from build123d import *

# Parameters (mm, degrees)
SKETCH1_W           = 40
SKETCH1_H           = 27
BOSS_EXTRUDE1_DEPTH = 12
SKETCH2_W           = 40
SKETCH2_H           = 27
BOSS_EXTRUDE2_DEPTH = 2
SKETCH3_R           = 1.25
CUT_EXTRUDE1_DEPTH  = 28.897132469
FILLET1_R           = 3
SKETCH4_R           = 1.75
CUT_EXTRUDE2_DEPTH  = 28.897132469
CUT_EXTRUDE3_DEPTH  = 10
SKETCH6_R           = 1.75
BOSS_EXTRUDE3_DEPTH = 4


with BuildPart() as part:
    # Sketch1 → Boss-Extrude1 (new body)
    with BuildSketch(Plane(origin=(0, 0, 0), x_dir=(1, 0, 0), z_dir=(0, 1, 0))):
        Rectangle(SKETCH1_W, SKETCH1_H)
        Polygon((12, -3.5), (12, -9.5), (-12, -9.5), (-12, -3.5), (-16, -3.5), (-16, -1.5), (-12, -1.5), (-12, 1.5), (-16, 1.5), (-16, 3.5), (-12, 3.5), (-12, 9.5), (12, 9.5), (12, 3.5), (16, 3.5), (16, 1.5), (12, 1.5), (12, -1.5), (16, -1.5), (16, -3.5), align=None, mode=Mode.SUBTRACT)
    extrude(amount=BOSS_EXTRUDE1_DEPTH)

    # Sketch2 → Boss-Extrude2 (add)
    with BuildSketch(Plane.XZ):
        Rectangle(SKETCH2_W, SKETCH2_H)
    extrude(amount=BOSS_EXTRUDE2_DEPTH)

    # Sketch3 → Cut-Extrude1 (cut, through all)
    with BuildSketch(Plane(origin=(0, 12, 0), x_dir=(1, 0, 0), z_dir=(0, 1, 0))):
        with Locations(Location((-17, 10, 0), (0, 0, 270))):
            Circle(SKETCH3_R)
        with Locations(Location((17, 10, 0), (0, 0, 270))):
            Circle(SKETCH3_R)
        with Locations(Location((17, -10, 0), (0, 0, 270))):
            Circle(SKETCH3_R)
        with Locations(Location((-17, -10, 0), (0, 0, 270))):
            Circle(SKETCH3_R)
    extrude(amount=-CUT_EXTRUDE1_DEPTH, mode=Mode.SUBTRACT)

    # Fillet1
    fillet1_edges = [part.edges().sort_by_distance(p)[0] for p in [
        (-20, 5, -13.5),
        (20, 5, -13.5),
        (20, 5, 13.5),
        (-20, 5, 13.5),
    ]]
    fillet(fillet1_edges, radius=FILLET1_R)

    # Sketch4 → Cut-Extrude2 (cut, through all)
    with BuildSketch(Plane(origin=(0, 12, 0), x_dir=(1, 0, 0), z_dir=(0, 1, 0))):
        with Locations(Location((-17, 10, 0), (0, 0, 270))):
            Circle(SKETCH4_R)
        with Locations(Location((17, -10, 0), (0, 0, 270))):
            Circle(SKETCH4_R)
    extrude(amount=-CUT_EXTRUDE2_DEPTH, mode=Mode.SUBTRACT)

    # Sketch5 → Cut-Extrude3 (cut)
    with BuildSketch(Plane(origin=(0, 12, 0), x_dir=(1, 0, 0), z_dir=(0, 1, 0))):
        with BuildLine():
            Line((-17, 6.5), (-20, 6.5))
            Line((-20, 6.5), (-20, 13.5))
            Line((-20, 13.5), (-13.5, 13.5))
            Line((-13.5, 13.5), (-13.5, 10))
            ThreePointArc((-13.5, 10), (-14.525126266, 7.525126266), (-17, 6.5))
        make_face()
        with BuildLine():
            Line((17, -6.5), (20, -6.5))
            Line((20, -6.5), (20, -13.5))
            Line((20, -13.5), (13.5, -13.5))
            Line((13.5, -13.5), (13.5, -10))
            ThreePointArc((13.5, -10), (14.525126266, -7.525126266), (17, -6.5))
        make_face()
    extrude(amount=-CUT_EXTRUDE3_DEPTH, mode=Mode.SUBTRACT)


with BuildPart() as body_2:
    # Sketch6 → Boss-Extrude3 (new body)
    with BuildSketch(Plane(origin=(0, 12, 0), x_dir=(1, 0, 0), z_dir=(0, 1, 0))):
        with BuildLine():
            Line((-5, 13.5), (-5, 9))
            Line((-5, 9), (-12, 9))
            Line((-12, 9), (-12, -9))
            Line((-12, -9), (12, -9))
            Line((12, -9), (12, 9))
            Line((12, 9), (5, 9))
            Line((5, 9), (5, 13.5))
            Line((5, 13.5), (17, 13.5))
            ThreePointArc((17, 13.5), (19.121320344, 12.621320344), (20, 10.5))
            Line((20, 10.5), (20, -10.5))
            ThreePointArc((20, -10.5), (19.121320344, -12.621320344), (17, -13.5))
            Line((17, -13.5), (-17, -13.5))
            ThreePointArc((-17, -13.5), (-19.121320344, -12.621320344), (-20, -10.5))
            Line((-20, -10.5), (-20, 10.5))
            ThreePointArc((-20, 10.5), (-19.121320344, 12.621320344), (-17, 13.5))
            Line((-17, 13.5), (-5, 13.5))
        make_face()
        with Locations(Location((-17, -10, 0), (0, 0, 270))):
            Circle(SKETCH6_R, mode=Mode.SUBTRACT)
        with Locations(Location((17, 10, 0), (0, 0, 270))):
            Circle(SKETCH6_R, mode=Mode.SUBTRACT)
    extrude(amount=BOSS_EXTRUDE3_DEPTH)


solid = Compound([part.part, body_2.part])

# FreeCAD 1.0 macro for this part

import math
import FreeCAD as App
import Part
import Sketcher

V = App.Vector
Q = App.Units.Quantity


def edges_at(feature, points):
    """Names of the edges that pass closest to the given points."""
    edges = feature.Shape.Edges
    near = lambda p: min(range(len(edges)), key=lambda i: edges[i].distToShape(Part.Vertex(*p))[0])
    return sorted({f"Edge{near(p) + 1}" for p in points})


def add_polygon(sketch, points):
    """Adds a closed chain of lines whose ends are joined by coincident constraints."""
    first, n = sketch.GeometryCount, len(points)
    for a, b in zip(points, points[1:] + points[:1]):
        sketch.addGeometry(Part.LineSegment(App.Vector(*a, 0), App.Vector(*b, 0)), False)
    for i in range(n):
        sketch.addConstraint(Sketcher.Constraint("Coincident", first + i, 2, first + (i + 1) % n, 1))

doc = App.newDocument("Part")
params = doc.addObject("Spreadsheet::Sheet", "Params")
for row, (alias, value) in enumerate([
    ("sketch1_width", "40 mm"),
    ("sketch1_width2", "4 mm"),
    ("sketch1_width3", "24 mm"),
    ("sketch1_height", "27 mm"),
    ("sketch1_height2", "6 mm"),
    ("pad1_length", "12 mm"),
    ("sketch2_width", "40 mm"),
    ("sketch2_height", "27 mm"),
    ("pad2_length", "2 mm"),
    ("sketch3_diameter", "2.5 mm"),
    ("fillet_radius", "3 mm"),
    ("sketch4_diameter", "3.5 mm"),
    ("sketch5_radius", "3.5 mm"),
    ("sketch5_width", "3 mm"),
    ("sketch5_height", "7 mm"),
    ("pocket3_length", "10 mm"),
    ("sketch6_radius", "3 mm"),
    ("sketch6_diameter", "3.5 mm"),
    ("sketch6_width", "12 mm"),
    ("sketch6_width2", "34 mm"),
    ("sketch6_width3", "7 mm"),
    ("pad3_length", "4 mm"),
], start=1):
    params.set(f"A{row}", alias)
    params.set(f"B{row}", "=" + value)
    params.setAlias(f"B{row}", alias)

body = doc.addObject("PartDesign::Body", "Body")

sketch1 = doc.addObject("Sketcher::SketchObject", "Sketch")
body.addObject(sketch1)
sketch1.AttachmentSupport = (doc.XZ_Plane, [""])
sketch1.MapMode = "FlatFace"
add_polygon(sketch1, [(-20, -13.5), (-20, 13.5), (20, 13.5), (20, -13.5)])
add_polygon(sketch1, [(16, 3.5), (12, 3.5), (12, 9.5), (-12, 9.5), (-12, 3.5), (-16, 3.5), (-16, 1.5), (-12, 1.5), (-12, -1.5), (-16, -1.5), (-16, -3.5), (-12, -3.5), (-12, -9.5), (12, -9.5), (12, -3.5), (16, -3.5), (16, -1.5), (12, -1.5), (12, 1.5), (16, 1.5)])
sketch1.addConstraint([
    Sketcher.Constraint("Vertical", 0),
    Sketcher.Constraint("Horizontal", 1),
    Sketcher.Constraint("Vertical", 2),
    Sketcher.Constraint("Horizontal", 3),
    Sketcher.Constraint("Horizontal", 4),
    Sketcher.Constraint("Vertical", 5),
    Sketcher.Constraint("Horizontal", 6),
    Sketcher.Constraint("Vertical", 7),
    Sketcher.Constraint("Horizontal", 8),
    Sketcher.Constraint("Vertical", 9),
    Sketcher.Constraint("Horizontal", 10),
    Sketcher.Constraint("Vertical", 11),
    Sketcher.Constraint("Horizontal", 12),
    Sketcher.Constraint("Vertical", 13),
    Sketcher.Constraint("Horizontal", 14),
    Sketcher.Constraint("Vertical", 15),
    Sketcher.Constraint("Horizontal", 16),
    Sketcher.Constraint("Vertical", 17),
    Sketcher.Constraint("Horizontal", 18),
    Sketcher.Constraint("Vertical", 19),
    Sketcher.Constraint("Horizontal", 20),
    Sketcher.Constraint("Vertical", 21),
    Sketcher.Constraint("Horizontal", 22),
    Sketcher.Constraint("Vertical", 23),
    Sketcher.Constraint("Symmetric", 0, 2, 2, 2, -1, 1),
    Sketcher.Constraint("Symmetric", 4, 2, 14, 2, -1, 1),
    Sketcher.Constraint("Symmetric", 6, 2, 16, 2, -1, 1),
    Sketcher.Constraint("Symmetric", 8, 2, 18, 2, -1, 1),
    Sketcher.Constraint("Symmetric", 10, 2, 20, 2, -1, 1),
    Sketcher.Constraint("Symmetric", 12, 2, 22, 2, -1, 1),
    Sketcher.Constraint("Symmetric", 4, 2, 7, 2, -2),
    Sketcher.Constraint("Symmetric", 12, 2, 19, 2, -2),
    Sketcher.Constraint("Vertical", 7, 2, 10, 2),
    Sketcher.Constraint("DistanceX", 1, 1, 1, 2, Q("40 mm")),
    Sketcher.Constraint("DistanceX", 4, 2, 4, 1, Q("4 mm")),
    Sketcher.Constraint("DistanceX", 6, 2, 6, 1, Q("24 mm")),
    Sketcher.Constraint("DistanceY", 0, 1, 0, 2, Q("27 mm")),
    Sketcher.Constraint("DistanceY", 5, 1, 5, 2, Q("6 mm")),
    Sketcher.Constraint("DistanceY", 9, 2, 9, 1, Q("2 mm")),
    Sketcher.Constraint("DistanceY", 11, 2, 11, 1, Q("3 mm")),
])
sketch1.setExpression("Constraints[57]", "Params.sketch1_width")
sketch1.setExpression("Constraints[58]", "Params.sketch1_width2")
sketch1.setExpression("Constraints[59]", "Params.sketch1_width3")
sketch1.setExpression("Constraints[60]", "Params.sketch1_height")
sketch1.setExpression("Constraints[61]", "Params.sketch1_height2")
pad1 = doc.addObject("PartDesign::Pad", "Pad")
body.addObject(pad1)
pad1.Profile = sketch1
pad1.setExpression("Length", "Params.pad1_length")
pad1.Reversed = True

sketch2 = doc.addObject("Sketcher::SketchObject", "Sketch001")
body.addObject(sketch2)
sketch2.AttachmentSupport = (doc.XZ_Plane, [""])
sketch2.MapMode = "FlatFace"
add_polygon(sketch2, [(-20, 14), (-20, -14), (20, -14), (20, 14)])
sketch2.addConstraint([
    Sketcher.Constraint("Vertical", 0),
    Sketcher.Constraint("Horizontal", 1),
    Sketcher.Constraint("Vertical", 2),
    Sketcher.Constraint("Horizontal", 3),
    Sketcher.Constraint("Symmetric", 0, 2, 2, 2, -1, 1),
    Sketcher.Constraint("DistanceX", 1, 1, 1, 2, Q("40 mm")),
    Sketcher.Constraint("DistanceY", 0, 2, 0, 1, Q("27 mm")),
])
sketch2.setExpression("Constraints[9]", "Params.sketch2_width")
sketch2.setExpression("Constraints[10]", "Params.sketch2_height")
pad2 = doc.addObject("PartDesign::Pad", "Pad001")
body.addObject(pad2)
pad2.Profile = sketch2
pad2.setExpression("Length", "Params.pad2_length")

sketch3 = doc.addObject("Sketcher::SketchObject", "Sketch002")
body.addObject(sketch3)
sketch3.AttachmentSupport = (doc.XZ_Plane, [""])
sketch3.MapMode = "FlatFace"
sketch3.AttachmentOffset = App.Placement(V(0, 0, -12), App.Rotation())
sketch3.addGeometry([
    Part.Circle(V(-17, -10, 0), V(0, 0, 1), 1.2),
    Part.Circle(V(17, -10, 0), V(0, 0, 1), 1.2),
    Part.Circle(V(17, 10, 0), V(0, 0, 1), 1.2),
    Part.Circle(V(-17, 10, 0), V(0, 0, 1), 1.2),
], False)
sketch3.addConstraint([
    Sketcher.Constraint("Equal", 0, 1),
    Sketcher.Constraint("Equal", 1, 2),
    Sketcher.Constraint("Equal", 2, 3),
    Sketcher.Constraint("Symmetric", 0, 3, 2, 3, -1, 1),
    Sketcher.Constraint("Symmetric", 1, 3, 3, 3, -1, 1),
    Sketcher.Constraint("Symmetric", 0, 3, 1, 3, -2),
    Sketcher.Constraint("Diameter", 0, Q("2.5 mm")),
    Sketcher.Constraint("DistanceX", 0, 3, -1, 1, Q("17 mm")),
    Sketcher.Constraint("DistanceY", 0, 3, -1, 1, Q("10 mm")),
])
sketch3.setExpression("Constraints[6]", "Params.sketch3_diameter")
pocket1 = doc.addObject("PartDesign::Pocket", "Pocket")
body.addObject(pocket1)
pocket1.Profile = sketch3
pocket1.Type = "ThroughAll"
pocket1.Reversed = True
doc.recompute()

fillet = doc.addObject("PartDesign::Fillet", "Fillet")
body.addObject(fillet)
fillet.Base = (pocket1, edges_at(pocket1, [
    (-20, 5, -13.5),
    (20, 5, -13.5),
    (20, 5, 13.5),
    (-20, 5, 13.5),
]))
fillet.setExpression("Radius", "Params.fillet_radius")

sketch4 = doc.addObject("Sketcher::SketchObject", "Sketch003")
body.addObject(sketch4)
sketch4.AttachmentSupport = (doc.XZ_Plane, [""])
sketch4.MapMode = "FlatFace"
sketch4.AttachmentOffset = App.Placement(V(0, 0, -12), App.Rotation())
sketch4.addGeometry([
    Part.Circle(V(-17, -10, 0), V(0, 0, 1), 1.8),
    Part.Circle(V(17, 10, 0), V(0, 0, 1), 1.8),
], False)
sketch4.addConstraint([
    Sketcher.Constraint("Equal", 0, 1),
    Sketcher.Constraint("Symmetric", 0, 3, 1, 3, -1, 1),
    Sketcher.Constraint("Diameter", 0, Q("3.5 mm")),
    Sketcher.Constraint("DistanceX", 0, 3, -1, 1, Q("17 mm")),
    Sketcher.Constraint("DistanceY", 0, 3, -1, 1, Q("10 mm")),
])
sketch4.setExpression("Constraints[2]", "Params.sketch4_diameter")
pocket2 = doc.addObject("PartDesign::Pocket", "Pocket001")
body.addObject(pocket2)
pocket2.Profile = sketch4
pocket2.Type = "ThroughAll"
pocket2.Reversed = True

sketch5 = doc.addObject("Sketcher::SketchObject", "Sketch004")
body.addObject(sketch5)
sketch5.AttachmentSupport = (doc.XZ_Plane, [""])
sketch5.MapMode = "FlatFace"
sketch5.AttachmentOffset = App.Placement(V(0, 0, -12), App.Rotation())
sketch5.addGeometry([
    Part.LineSegment(V(-20, -6.5, 0), V(-17, -6.5, 0)),
    Part.ArcOfCircle(Part.Circle(V(-17, -10, 0), V(0, 0, 1), 3.5), math.radians(0), math.radians(90)),
    Part.LineSegment(V(-13.5, -10, 0), V(-13.5, -13.5, 0)),
    Part.LineSegment(V(-13.5, -13.5, 0), V(-20, -13.5, 0)),
    Part.LineSegment(V(-20, -13.5, 0), V(-20, -6.5, 0)),
    Part.LineSegment(V(20, 6.5, 0), V(17, 6.5, 0)),
    Part.ArcOfCircle(Part.Circle(V(17, 10, 0), V(0, 0, 1), 3.5), math.radians(-180), math.radians(-90)),
    Part.LineSegment(V(13.5, 10, 0), V(13.5, 13.5, 0)),
    Part.LineSegment(V(13.5, 13.5, 0), V(20, 13.5, 0)),
    Part.LineSegment(V(20, 13.5, 0), V(20, 6.5, 0)),
], False)
sketch5.addConstraint([
    Sketcher.Constraint("Tangent", 0, 2, 1, 2),
    Sketcher.Constraint("Tangent", 1, 1, 2, 1),
    Sketcher.Constraint("Coincident", 2, 2, 3, 1),
    Sketcher.Constraint("Coincident", 3, 2, 4, 1),
    Sketcher.Constraint("Coincident", 4, 2, 0, 1),
    Sketcher.Constraint("Tangent", 5, 2, 6, 2),
    Sketcher.Constraint("Tangent", 6, 1, 7, 1),
    Sketcher.Constraint("Coincident", 7, 2, 8, 1),
    Sketcher.Constraint("Coincident", 8, 2, 9, 1),
    Sketcher.Constraint("Coincident", 9, 2, 5, 1),
    Sketcher.Constraint("Horizontal", 0),
    Sketcher.Constraint("Vertical", 2),
    Sketcher.Constraint("Horizontal", 3),
    Sketcher.Constraint("Vertical", 4),
    Sketcher.Constraint("Horizontal", 5),
    Sketcher.Constraint("Vertical", 7),
    Sketcher.Constraint("Horizontal", 8),
    Sketcher.Constraint("Vertical", 9),
    Sketcher.Constraint("Equal", 1, 6),
    Sketcher.Constraint("Symmetric", 1, 3, 6, 3, -1, 1),
    Sketcher.Constraint("Symmetric", 3, 2, 8, 2, -1, 1),
    Sketcher.Constraint("Radius", 1, Q("3.5 mm")),
    Sketcher.Constraint("DistanceX", 0, 1, 0, 2, Q("3 mm")),
    Sketcher.Constraint("DistanceY", 4, 1, 4, 2, Q("7 mm")),
    Sketcher.Constraint("DistanceX", 1, 3, -1, 1, Q("17 mm")),
    Sketcher.Constraint("DistanceY", 1, 3, -1, 1, Q("10 mm")),
])
sketch5.setExpression("Constraints[21]", "Params.sketch5_radius")
sketch5.setExpression("Constraints[22]", "Params.sketch5_width")
sketch5.setExpression("Constraints[23]", "Params.sketch5_height")
pocket3 = doc.addObject("PartDesign::Pocket", "Pocket002")
body.addObject(pocket3)
pocket3.Profile = sketch5
pocket3.setExpression("Length", "Params.pocket3_length")
pocket3.Reversed = True
body2 = doc.addObject("PartDesign::Body", "Body001")

sketch6 = doc.addObject("Sketcher::SketchObject", "Sketch005")
body2.addObject(sketch6)
sketch6.AttachmentSupport = (doc.getObject("XZ_Plane001"), [""])
sketch6.MapMode = "FlatFace"
sketch6.AttachmentOffset = App.Placement(V(0, 0, -12), App.Rotation())
sketch6.addGeometry([
    Part.LineSegment(V(-5, -9, 0), V(-5, -13.5, 0)),
    Part.LineSegment(V(-5, -13.5, 0), V(-17, -13.5, 0)),
    Part.ArcOfCircle(Part.Circle(V(-17, -10.5, 0), V(0, 0, 1), 3), math.radians(180), math.radians(270)),
    Part.LineSegment(V(-20, -10.5, 0), V(-20, 10.5, 0)),
    Part.ArcOfCircle(Part.Circle(V(-17, 10.5, 0), V(0, 0, 1), 3), math.radians(90), math.radians(180)),
    Part.LineSegment(V(-17, 13.5, 0), V(17, 13.5, 0)),
    Part.ArcOfCircle(Part.Circle(V(17, 10.5, 0), V(0, 0, 1), 3), math.radians(0), math.radians(90)),
    Part.LineSegment(V(20, 10.5, 0), V(20, -10.5, 0)),
    Part.ArcOfCircle(Part.Circle(V(17, -10.5, 0), V(0, 0, 1), 3), math.radians(-90), math.radians(0)),
    Part.LineSegment(V(17, -13.5, 0), V(5, -13.5, 0)),
    Part.LineSegment(V(5, -13.5, 0), V(5, -9, 0)),
    Part.LineSegment(V(5, -9, 0), V(12, -9, 0)),
    Part.LineSegment(V(12, -9, 0), V(12, 9, 0)),
    Part.LineSegment(V(12, 9, 0), V(-12, 9, 0)),
    Part.LineSegment(V(-12, 9, 0), V(-12, -9, 0)),
    Part.LineSegment(V(-12, -9, 0), V(-5, -9, 0)),
    Part.Circle(V(-17, 10, 0), V(0, 0, 1), 1.8),
    Part.Circle(V(17, -10, 0), V(0, 0, 1), 1.8),
], False)
sketch6.addConstraint([
    Sketcher.Constraint("Coincident", 0, 2, 1, 1),
    Sketcher.Constraint("Tangent", 1, 2, 2, 2),
    Sketcher.Constraint("Tangent", 2, 1, 3, 1),
    Sketcher.Constraint("Tangent", 3, 2, 4, 2),
    Sketcher.Constraint("Tangent", 4, 1, 5, 1),
    Sketcher.Constraint("Tangent", 5, 2, 6, 2),
    Sketcher.Constraint("Tangent", 6, 1, 7, 1),
    Sketcher.Constraint("Tangent", 7, 2, 8, 2),
    Sketcher.Constraint("Tangent", 8, 1, 9, 1),
    Sketcher.Constraint("Coincident", 9, 2, 10, 1),
    Sketcher.Constraint("Coincident", 10, 2, 11, 1),
    Sketcher.Constraint("Coincident", 11, 2, 12, 1),
    Sketcher.Constraint("Coincident", 12, 2, 13, 1),
    Sketcher.Constraint("Coincident", 13, 2, 14, 1),
    Sketcher.Constraint("Coincident", 14, 2, 15, 1),
    Sketcher.Constraint("Coincident", 15, 2, 0, 1),
    Sketcher.Constraint("Vertical", 0),
    Sketcher.Constraint("Horizontal", 1),
    Sketcher.Constraint("Vertical", 3),
    Sketcher.Constraint("Horizontal", 5),
    Sketcher.Constraint("Vertical", 7),
    Sketcher.Constraint("Horizontal", 9),
    Sketcher.Constraint("Vertical", 10),
    Sketcher.Constraint("Horizontal", 11),
    Sketcher.Constraint("Vertical", 12),
    Sketcher.Constraint("Horizontal", 13),
    Sketcher.Constraint("Vertical", 14),
    Sketcher.Constraint("Horizontal", 15),
    Sketcher.Constraint("Equal", 2, 4),
    Sketcher.Constraint("Equal", 4, 6),
    Sketcher.Constraint("Equal", 6, 8),
    Sketcher.Constraint("Equal", 16, 17),
    Sketcher.Constraint("Symmetric", 2, 3, 6, 3, -1, 1),
    Sketcher.Constraint("Symmetric", 16, 3, 17, 3, -1, 1),
    Sketcher.Constraint("Symmetric", 11, 2, 13, 2, -1, 1),
    Sketcher.Constraint("Symmetric", 0, 2, 9, 2, -2),
    Sketcher.Constraint("Horizontal", 11, 2, 14, 2),
    Sketcher.Constraint("Vertical", 4, 3, 16, 3),
    Sketcher.Constraint("Radius", 2, Q("3 mm")),
    Sketcher.Constraint("Diameter", 16, Q("3.5 mm")),
    Sketcher.Constraint("DistanceX", 1, 2, 1, 1, Q("12 mm")),
    Sketcher.Constraint("DistanceX", 5, 1, 5, 2, Q("34 mm")),
    Sketcher.Constraint("DistanceX", 11, 1, 11, 2, Q("7 mm")),
    Sketcher.Constraint("DistanceY", 3, 1, 3, 2, Q("21 mm")),
    Sketcher.Constraint("DistanceY", 12, 1, 12, 2, Q("18 mm")),
    Sketcher.Constraint("DistanceY", -1, 1, 16, 3, Q("10 mm")),
])
sketch6.setExpression("Constraints[38]", "Params.sketch6_radius")
sketch6.setExpression("Constraints[39]", "Params.sketch6_diameter")
sketch6.setExpression("Constraints[40]", "Params.sketch6_width")
sketch6.setExpression("Constraints[41]", "Params.sketch6_width2")
sketch6.setExpression("Constraints[42]", "Params.sketch6_width3")
pad3 = doc.addObject("PartDesign::Pad", "Pad002")
body2.addObject(pad3)
pad3.Profile = sketch6
pad3.setExpression("Length", "Params.pad3_length")
pad3.Reversed = True

doc.recompute()
